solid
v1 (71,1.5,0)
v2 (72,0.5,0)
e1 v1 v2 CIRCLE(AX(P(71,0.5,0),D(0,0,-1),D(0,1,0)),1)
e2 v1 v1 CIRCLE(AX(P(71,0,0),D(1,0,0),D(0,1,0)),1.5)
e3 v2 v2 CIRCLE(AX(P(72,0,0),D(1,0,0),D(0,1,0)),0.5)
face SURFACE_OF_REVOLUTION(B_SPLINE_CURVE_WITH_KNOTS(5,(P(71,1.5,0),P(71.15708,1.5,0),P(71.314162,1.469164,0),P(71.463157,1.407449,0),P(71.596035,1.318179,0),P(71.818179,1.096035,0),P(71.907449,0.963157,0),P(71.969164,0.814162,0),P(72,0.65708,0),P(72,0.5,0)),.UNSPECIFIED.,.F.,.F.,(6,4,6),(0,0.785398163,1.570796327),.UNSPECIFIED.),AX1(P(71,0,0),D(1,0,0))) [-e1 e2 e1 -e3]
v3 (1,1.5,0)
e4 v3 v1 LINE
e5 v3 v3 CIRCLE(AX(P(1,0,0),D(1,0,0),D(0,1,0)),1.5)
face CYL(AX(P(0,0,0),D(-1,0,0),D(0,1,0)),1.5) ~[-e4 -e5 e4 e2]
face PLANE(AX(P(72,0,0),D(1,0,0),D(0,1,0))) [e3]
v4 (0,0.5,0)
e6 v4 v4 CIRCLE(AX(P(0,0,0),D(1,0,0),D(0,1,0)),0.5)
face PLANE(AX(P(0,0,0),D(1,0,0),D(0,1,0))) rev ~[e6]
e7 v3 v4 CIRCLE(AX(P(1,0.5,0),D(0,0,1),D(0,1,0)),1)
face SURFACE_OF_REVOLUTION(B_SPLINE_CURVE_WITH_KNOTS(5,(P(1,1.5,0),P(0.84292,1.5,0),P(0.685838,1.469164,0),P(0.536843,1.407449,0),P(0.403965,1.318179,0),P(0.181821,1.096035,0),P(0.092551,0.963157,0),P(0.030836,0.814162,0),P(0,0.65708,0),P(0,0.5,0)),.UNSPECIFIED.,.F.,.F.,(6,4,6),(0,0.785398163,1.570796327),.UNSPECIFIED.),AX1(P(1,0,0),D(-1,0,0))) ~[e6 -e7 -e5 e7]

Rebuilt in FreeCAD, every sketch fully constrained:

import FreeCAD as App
import Part
import Sketcher

V = App.Vector
Q = App.Units.Quantity


def edges_at(feature, points):
    """Names of the edges that pass closest to the given points."""
    edges = feature.Shape.Edges
    near = lambda p: min(range(len(edges)), key=lambda i: edges[i].distToShape(Part.Vertex(*p))[0])
    return sorted({f"Edge{near(p) + 1}" for p in points})

doc = App.newDocument("Part")
params = doc.addObject("Spreadsheet::Sheet", "Params")
for row, (alias, value) in enumerate([
    ("sketch1_diameter", "3 mm"),
    ("pad1_length", "72 mm"),
    ("fillet_radius", "1 mm"),
    ("fillet2_radius", "1 mm"),
], start=1):
    params.set(f"A{row}", alias)
    params.set(f"B{row}", "=" + value)
    params.setAlias(f"B{row}", alias)

body = doc.addObject("PartDesign::Body", "Body")

# Sketch on YZ plane
sketch1 = body.newObject("Sketcher::SketchObject", "Sketch")
sketch1.AttachmentSupport = (doc.getObject("YZ_Plane"), [""])
sketch1.MapMode = "FlatFace"
sketch1.addGeometry(Part.Circle(V(0, 0, 0), V(0, 0, 1), 1.5), False)
sketch1.addConstraint(Sketcher.Constraint("Coincident", 0, 3, -1, 1))
sketch1.addConstraint(Sketcher.Constraint("Diameter", 0, Q("3 mm")))
sketch1.setExpression("Constraints[1]", "Params.sketch1_diameter")
pad1 = body.newObject("PartDesign::Pad", "Pad")
pad1.Profile = sketch1
pad1.setExpression("Length", "Params.pad1_length")
doc.recompute()

fillet = body.newObject("PartDesign::Fillet", "Fillet")
fillet.Base = (pad1, edges_at(pad1, [(72, -1.5, 0)]))
fillet.setExpression("Radius", "Params.fillet_radius")
doc.recompute()

fillet2 = body.newObject("PartDesign::Fillet", "Fillet001")
fillet2.Base = (fillet, edges_at(fillet, [(0, -1.5, 0)]))
fillet2.setExpression("Radius", "Params.fillet2_radius")

doc.recompute()
